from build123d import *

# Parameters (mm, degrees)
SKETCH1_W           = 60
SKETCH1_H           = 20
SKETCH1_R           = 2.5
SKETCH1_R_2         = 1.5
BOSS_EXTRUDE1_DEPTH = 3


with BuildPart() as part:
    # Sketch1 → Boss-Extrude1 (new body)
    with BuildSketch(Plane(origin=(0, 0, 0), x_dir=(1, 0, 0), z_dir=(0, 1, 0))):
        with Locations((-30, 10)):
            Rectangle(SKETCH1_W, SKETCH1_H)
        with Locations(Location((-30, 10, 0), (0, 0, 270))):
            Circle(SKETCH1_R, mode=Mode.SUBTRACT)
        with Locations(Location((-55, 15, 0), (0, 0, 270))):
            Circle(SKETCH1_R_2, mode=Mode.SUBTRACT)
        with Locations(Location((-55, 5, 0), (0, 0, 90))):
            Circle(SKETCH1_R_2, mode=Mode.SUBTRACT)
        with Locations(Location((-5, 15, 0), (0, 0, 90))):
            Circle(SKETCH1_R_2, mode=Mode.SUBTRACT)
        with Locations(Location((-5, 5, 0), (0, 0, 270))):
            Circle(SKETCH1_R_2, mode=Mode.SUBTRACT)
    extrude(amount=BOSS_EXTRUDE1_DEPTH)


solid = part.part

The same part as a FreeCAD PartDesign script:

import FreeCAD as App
import Part
import Sketcher

V = App.Vector
Q = App.Units.Quantity


def add_polygon(sketch, points):
    """Adds a closed chain of lines whose ends are joined by coincident constraints."""
    first, n = sketch.GeometryCount, len(points)
    for a, b in zip(points, points[1:] + points[:1]):
        sketch.addGeometry(Part.LineSegment(App.Vector(*a, 0), App.Vector(*b, 0)), False)
    for i in range(n):
        sketch.addConstraint(Sketcher.Constraint("Coincident", first + i, 2, first + (i + 1) % n, 1))

doc = App.newDocument("Part")
body = doc.addObject("PartDesign::Body", "Body")

sketch1 = doc.addObject("Sketcher::SketchObject", "Sketch")
body.addObject(sketch1)
sketch1.AttachmentSupport = (doc.XZ_Plane, [""])
sketch1.MapMode = "FlatFace"
add_polygon(sketch1, [(-60, -20), (-60, 0), (0, 0), (0, -20)])
sketch1.addGeometry(Part.Circle(V(-55, -5, 0), V(0, 0, 1), 1.5), False)
sketch1.addGeometry(Part.Circle(V(-5, -5, 0), V(0, 0, 1), 1.5), False)
sketch1.addGeometry(Part.Circle(V(-55, -15, 0), V(0, 0, 1), 1.5), False)
sketch1.addGeometry(Part.Circle(V(-30, -10, 0), V(0, 0, 1), 2.5), False)
sketch1.addGeometry(Part.Circle(V(-5, -15, 0), V(0, 0, 1), 1.5), False)
sketch1.addConstraint([
    Sketcher.Constraint("Vertical", 0),
    Sketcher.Constraint("Horizontal", 1),
    Sketcher.Constraint("Vertical", 2),
    Sketcher.Constraint("Horizontal", 3),
    Sketcher.Constraint("Coincident", 1, 2, -1, 1),
    Sketcher.Constraint("Equal", 4, 5),
    Sketcher.Constraint("Equal", 5, 6),
    Sketcher.Constraint("Equal", 6, 8),
    Sketcher.Constraint("Horizontal", 4, 3, 5, 3),
    Sketcher.Constraint("Horizontal", 6, 3, 8, 3),
    Sketcher.Constraint("Vertical", 4, 3, 6, 3),
    Sketcher.Constraint("Vertical", 5, 3, 8, 3),
    Sketcher.Constraint("Diameter", 4, Q("3 mm")),
    Sketcher.Constraint("Diameter", 7, Q("5 mm")),
    Sketcher.Constraint("DistanceX", 1, 1, 1, 2, Q("60 mm")),
    Sketcher.Constraint("DistanceY", 0, 1, 0, 2, Q("20 mm")),
    Sketcher.Constraint("DistanceX", 4, 3, -1, 1, Q("55 mm")),
    Sketcher.Constraint("DistanceY", 4, 3, -1, 1, Q("5 mm")),
    Sketcher.Constraint("DistanceX", 5, 3, -1, 1, Q("5 mm")),
    Sketcher.Constraint("DistanceY", 6, 3, -1, 1, Q("15 mm")),
    Sketcher.Constraint("DistanceX", 7, 3, -1, 1, Q("30 mm")),
    Sketcher.Constraint("DistanceY", 7, 3, -1, 1, Q("10 mm")),
])
pad1 = doc.addObject("PartDesign::Pad", "Pad")
body.addObject(pad1)
pad1.Profile = sketch1
pad1.Length = 3
pad1.Reversed = True

doc.recompute()
